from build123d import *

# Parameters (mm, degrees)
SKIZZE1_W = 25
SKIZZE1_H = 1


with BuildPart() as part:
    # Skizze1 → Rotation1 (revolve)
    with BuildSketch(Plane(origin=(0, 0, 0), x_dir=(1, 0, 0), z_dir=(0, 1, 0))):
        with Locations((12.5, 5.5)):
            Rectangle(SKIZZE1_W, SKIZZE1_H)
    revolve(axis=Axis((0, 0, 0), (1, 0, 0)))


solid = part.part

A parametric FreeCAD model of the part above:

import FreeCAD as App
import Part
import Sketcher

V = App.Vector
Q = App.Units.Quantity

doc = App.newDocument("Part")
body = doc.addObject("PartDesign::Body", "Body")

# Sketch on XZ plane
sketch1 = body.newObject("Sketcher::SketchObject", "Sketch")
sketch1.AttachmentSupport = (doc.getObject("XZ_Plane"), [""])
sketch1.MapMode = "FlatFace"
sketch1.addGeometry([
    Part.LineSegment(V(0, -6, 0), V(0, -5, 0)),
    Part.LineSegment(V(0, -5, 0), V(25, -5, 0)),
    Part.LineSegment(V(25, -5, 0), V(25, -6, 0)),
    Part.LineSegment(V(25, -6, 0), V(0, -6, 0)),
], False)
sketch1.addConstraint([
    Sketcher.Constraint("Coincident", 0, 2, 1, 1),
    Sketcher.Constraint("Coincident", 1, 2, 2, 1),
    Sketcher.Constraint("Coincident", 2, 2, 3, 1),
    Sketcher.Constraint("Coincident", 3, 2, 0, 1),
    Sketcher.Constraint("Vertical", 0),
    Sketcher.Constraint("Horizontal", 1),
    Sketcher.Constraint("Vertical", 2),
    Sketcher.Constraint("Horizontal", 3),
    Sketcher.Constraint("PointOnObject", 0, 2, -2),
    Sketcher.Constraint("DistanceX", 1, 1, 1, 2, Q("25 mm")),
    Sketcher.Constraint("DistanceY", 0, 1, 0, 2, Q("1 mm")),
    Sketcher.Constraint("DistanceY", 0, 2, -1, 1, Q("5 mm")),
])
revolution = body.newObject("PartDesign::Revolution", "Revolution")
revolution.Profile = sketch1
revolution.ReferenceAxis = (sketch1, ["H_Axis"])
revolution.Angle = 360

doc.recompute()
